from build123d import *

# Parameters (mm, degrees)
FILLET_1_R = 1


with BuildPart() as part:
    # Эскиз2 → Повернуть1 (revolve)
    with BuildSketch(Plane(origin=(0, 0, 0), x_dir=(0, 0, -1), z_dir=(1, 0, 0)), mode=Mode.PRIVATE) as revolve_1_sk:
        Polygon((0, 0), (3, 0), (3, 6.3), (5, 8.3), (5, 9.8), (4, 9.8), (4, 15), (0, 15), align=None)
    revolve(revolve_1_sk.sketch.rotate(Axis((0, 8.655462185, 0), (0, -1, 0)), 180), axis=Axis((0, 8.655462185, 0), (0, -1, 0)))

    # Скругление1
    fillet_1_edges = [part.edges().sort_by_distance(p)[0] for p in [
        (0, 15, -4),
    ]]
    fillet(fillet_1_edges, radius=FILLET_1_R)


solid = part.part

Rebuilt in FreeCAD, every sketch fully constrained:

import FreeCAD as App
import Part
import Sketcher
Q = App.Units.Quantity


def edges_at(feature, points):
    """Names of the edges that pass closest to the given points."""
    edges = feature.Shape.Edges
    near = lambda p: min(range(len(edges)), key=lambda i: edges[i].distToShape(Part.Vertex(*p))[0])
    return sorted({f"Edge{near(p) + 1}" for p in points})


def add_polygon(sketch, points):
    """Adds a closed chain of lines whose ends are joined by coincident constraints."""
    first, n = sketch.GeometryCount, len(points)
    for a, b in zip(points, points[1:] + points[:1]):
        sketch.addGeometry(Part.LineSegment(App.Vector(*a, 0), App.Vector(*b, 0)), False)
    for i in range(n):
        sketch.addConstraint(Sketcher.Constraint("Coincident", first + i, 2, first + (i + 1) % n, 1))

doc = App.newDocument("Part")
body = doc.addObject("PartDesign::Body", "Body")

sketch1 = body.newObject("Sketcher::SketchObject", "Sketch")
sketch1.AttachmentSupport = (doc.getObject("YZ_Plane"), [""])
sketch1.MapMode = "FlatFace"
add_polygon(sketch1, [(0, 0), (0, -3), (6.3, -3), (8.3, -5), (9.8, -5), (9.8, -4), (15, -4), (15, 0)])
sketch1.addConstraint(Sketcher.Constraint("Vertical", 0))
sketch1.addConstraint(Sketcher.Constraint("Horizontal", 1))
sketch1.addConstraint(Sketcher.Constraint("Horizontal", 3))
sketch1.addConstraint(Sketcher.Constraint("Vertical", 4))
sketch1.addConstraint(Sketcher.Constraint("Horizontal", 5))
sketch1.addConstraint(Sketcher.Constraint("Vertical", 6))
sketch1.addConstraint(Sketcher.Constraint("Horizontal", 7))
sketch1.addConstraint(Sketcher.Constraint("Coincident", 7, 2, -1, 1))
sketch1.addConstraint(Sketcher.Constraint("DistanceX", 7, 2, 7, 1, 15.0))
sketch1.addConstraint(Sketcher.Constraint("DistanceY", 0, 2, 0, 1, 3.0))
sketch1.addConstraint(Sketcher.Constraint("DistanceY", 4, 1, 4, 2, 1.0))
sketch1.addConstraint(Sketcher.Constraint("DistanceY", 6, 1, 6, 2, 4.0))
sketch1.addConstraint(Sketcher.Constraint("Angle", 2, Q("-45 deg")))
sketch1.addConstraint(Sketcher.Constraint("DistanceX", 1, 1, 1, 2, 6.3))
sketch1.addConstraint(Sketcher.Constraint("DistanceX", 3, 1, 3, 2, 1.5))
revolution = body.newObject("PartDesign::Revolution", "Revolution")
revolution.Profile = sketch1
revolution.ReferenceAxis = (sketch1, ["H_Axis"])
revolution.Angle = 360
doc.recompute()

fillet = body.newObject("PartDesign::Fillet", "Fillet")
fillet.Base = (revolution, edges_at(revolution, [(0, 15, -4)]))
fillet.Radius = 1

doc.recompute()
